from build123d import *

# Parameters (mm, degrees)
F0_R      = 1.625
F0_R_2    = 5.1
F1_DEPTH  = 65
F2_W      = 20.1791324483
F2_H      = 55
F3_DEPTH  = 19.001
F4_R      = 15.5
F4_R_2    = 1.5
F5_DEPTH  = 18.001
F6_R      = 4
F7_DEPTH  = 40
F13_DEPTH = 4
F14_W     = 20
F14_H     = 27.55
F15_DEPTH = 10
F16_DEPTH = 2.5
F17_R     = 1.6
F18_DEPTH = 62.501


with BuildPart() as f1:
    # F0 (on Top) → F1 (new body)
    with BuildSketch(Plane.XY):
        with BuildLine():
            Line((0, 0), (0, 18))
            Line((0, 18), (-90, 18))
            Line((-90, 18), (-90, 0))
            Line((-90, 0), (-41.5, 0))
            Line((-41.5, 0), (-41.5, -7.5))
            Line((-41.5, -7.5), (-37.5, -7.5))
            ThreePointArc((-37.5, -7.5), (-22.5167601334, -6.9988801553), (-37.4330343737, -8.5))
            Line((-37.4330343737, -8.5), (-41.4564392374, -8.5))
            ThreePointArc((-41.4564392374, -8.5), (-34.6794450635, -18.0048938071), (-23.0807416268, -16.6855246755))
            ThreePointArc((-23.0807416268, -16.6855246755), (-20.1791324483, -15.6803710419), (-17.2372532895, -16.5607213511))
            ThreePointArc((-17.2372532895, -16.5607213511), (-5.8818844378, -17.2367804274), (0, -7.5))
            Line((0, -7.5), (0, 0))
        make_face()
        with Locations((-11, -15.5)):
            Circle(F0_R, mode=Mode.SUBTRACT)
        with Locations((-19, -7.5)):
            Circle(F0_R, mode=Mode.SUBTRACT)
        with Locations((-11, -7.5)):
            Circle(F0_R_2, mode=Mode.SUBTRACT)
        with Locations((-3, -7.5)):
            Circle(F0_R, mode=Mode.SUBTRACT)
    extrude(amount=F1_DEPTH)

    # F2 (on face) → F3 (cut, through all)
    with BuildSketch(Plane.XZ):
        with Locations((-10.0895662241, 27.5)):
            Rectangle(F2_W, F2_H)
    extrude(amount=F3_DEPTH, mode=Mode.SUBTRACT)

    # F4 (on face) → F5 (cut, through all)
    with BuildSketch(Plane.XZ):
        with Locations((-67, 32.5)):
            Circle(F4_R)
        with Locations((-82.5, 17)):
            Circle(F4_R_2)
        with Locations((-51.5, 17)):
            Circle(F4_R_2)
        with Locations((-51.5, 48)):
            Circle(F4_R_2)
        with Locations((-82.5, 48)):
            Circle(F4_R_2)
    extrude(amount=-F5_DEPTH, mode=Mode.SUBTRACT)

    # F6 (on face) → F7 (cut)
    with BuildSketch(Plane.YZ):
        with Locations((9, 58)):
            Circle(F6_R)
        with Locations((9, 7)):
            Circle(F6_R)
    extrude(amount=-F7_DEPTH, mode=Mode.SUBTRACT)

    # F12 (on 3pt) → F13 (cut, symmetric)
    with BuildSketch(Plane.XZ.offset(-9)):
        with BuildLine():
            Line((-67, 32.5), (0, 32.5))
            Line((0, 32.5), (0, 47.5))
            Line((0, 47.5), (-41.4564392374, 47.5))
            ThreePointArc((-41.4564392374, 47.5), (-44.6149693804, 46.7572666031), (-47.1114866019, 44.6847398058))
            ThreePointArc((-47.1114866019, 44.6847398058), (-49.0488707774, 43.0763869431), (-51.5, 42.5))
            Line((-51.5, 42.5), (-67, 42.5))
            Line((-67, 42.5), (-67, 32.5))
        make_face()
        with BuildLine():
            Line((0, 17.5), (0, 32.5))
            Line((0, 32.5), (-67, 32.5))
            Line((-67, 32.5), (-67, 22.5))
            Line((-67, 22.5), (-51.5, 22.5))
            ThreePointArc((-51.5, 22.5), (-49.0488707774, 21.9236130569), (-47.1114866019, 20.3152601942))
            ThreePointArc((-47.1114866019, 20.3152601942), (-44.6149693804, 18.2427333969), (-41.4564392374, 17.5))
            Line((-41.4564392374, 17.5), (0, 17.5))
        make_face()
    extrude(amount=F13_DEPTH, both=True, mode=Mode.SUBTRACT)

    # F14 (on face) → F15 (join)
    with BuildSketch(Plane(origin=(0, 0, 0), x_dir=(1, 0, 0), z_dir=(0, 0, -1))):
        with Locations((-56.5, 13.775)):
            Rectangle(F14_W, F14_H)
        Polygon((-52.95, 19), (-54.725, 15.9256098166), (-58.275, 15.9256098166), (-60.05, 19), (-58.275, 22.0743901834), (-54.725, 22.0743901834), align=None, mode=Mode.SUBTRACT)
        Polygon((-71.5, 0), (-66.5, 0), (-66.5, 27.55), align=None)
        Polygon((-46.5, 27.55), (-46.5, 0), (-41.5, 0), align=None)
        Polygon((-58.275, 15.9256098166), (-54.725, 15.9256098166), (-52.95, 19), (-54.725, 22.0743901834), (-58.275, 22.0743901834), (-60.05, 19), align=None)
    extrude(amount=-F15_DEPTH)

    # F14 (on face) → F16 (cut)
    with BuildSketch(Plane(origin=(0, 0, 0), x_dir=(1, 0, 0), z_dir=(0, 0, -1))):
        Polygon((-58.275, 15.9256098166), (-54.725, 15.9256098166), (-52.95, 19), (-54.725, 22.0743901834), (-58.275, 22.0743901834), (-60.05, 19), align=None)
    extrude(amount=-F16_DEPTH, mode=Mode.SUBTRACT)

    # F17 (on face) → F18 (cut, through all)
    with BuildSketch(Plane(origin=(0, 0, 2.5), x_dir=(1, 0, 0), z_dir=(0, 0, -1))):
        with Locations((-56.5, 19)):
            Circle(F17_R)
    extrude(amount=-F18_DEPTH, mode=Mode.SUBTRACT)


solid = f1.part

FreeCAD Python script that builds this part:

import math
import FreeCAD as App
import Part
import Sketcher

V = App.Vector
Q = App.Units.Quantity

doc = App.newDocument("Part")
body = doc.addObject("PartDesign::Body", "Body")

# Sketch on XY plane
sketch1 = doc.addObject("Sketcher::SketchObject", "Sketch")
body.addObject(sketch1)
sketch1.AttachmentSupport = (doc.XY_Plane, [""])
sketch1.MapMode = "FlatFace"
sketch1.addGeometry([
    Part.LineSegment(V(0, 18, 0), V(-90, 18, 0)),  # 0
    Part.LineSegment(V(-90, 18, 0), V(-90, 0, 0)),  # 1
    Part.LineSegment(V(-90, 0, 0), V(-41.5, 0, 0)),  # 2
    Part.LineSegment(V(-41.5, 0, 0), V(-41.5, -7.5, 0)),  # 3
    Part.LineSegment(V(-41.5, -7.5, 0), V(-37.5, -7.5, 0)),  # 4
    Part.ArcOfCircle(Part.Circle(V(-30, -7.5, 0), V(0, 0, 1), 7.5), math.radians(-172), math.radians(180)),  # 5
    Part.LineSegment(V(-37.4, -8.5, 0), V(-41.5, -8.5, 0)),  # 6
    Part.ArcOfCircle(Part.Circle(V(-30, -7.5, 0), V(0, 0, 1), 11.5), math.radians(-175), math.radians(-53)),  # 7
    Part.ArcOfCircle(Part.Circle(V(-20.1, -20.7, 0), V(0, 0, 1), 5), math.radians(55), math.radians(127)),  # 8
    Part.ArcOfCircle(Part.Circle(V(-11, -7.5, 0), V(0, 0, 1), 11), math.radians(-125), math.radians(0)),  # 9
    Part.LineSegment(V(0, -7.5, 0), V(0, 18, 0)),  # 10
    Part.Circle(V(-11, -15.5, 0), V(0, 0, 1), 1.6),  # 11
    Part.Circle(V(-19, -7.5, 0), V(0, 0, 1), 1.6),  # 12
    Part.Circle(V(-11, -7.5, 0), V(0, 0, 1), 5.1),  # 13
    Part.Circle(V(-3, -7.5, 0), V(0, 0, 1), 1.6),  # 14
], False)
sketch1.addConstraint([
    Sketcher.Constraint("Coincident", 0, 2, 1, 1),
    Sketcher.Constraint("Coincident", 1, 2, 2, 1),
    Sketcher.Constraint("Coincident", 2, 2, 3, 1),
    Sketcher.Constraint("Coincident", 3, 2, 4, 1),
    Sketcher.Constraint("Coincident", 4, 2, 5, 2),
    Sketcher.Constraint("Coincident", 5, 1, 6, 1),
    Sketcher.Constraint("Coincident", 6, 2, 7, 1),
    Sketcher.Constraint("Tangent", 7, 2, 8, 2),
    Sketcher.Constraint("Tangent", 8, 1, 9, 1),
    Sketcher.Constraint("Tangent", 9, 2, 10, 1),
    Sketcher.Constraint("Coincident", 10, 2, 0, 1),
    Sketcher.Constraint("Horizontal", 0),
    Sketcher.Constraint("Vertical", 1),
    Sketcher.Constraint("Horizontal", 2),
    Sketcher.Constraint("Vertical", 3),
    Sketcher.Constraint("Horizontal", 4),
    Sketcher.Constraint("Horizontal", 6),
    Sketcher.Constraint("Vertical", 10),
    Sketcher.Constraint("Coincident", 7, 3, 5, 3),
    Sketcher.Constraint("Coincident", 13, 3, 9, 3),
    Sketcher.Constraint("Equal", 11, 12),
    Sketcher.Constraint("Equal", 12, 14),
    Sketcher.Constraint("PointOnObject", 1, 2, -1),
    Sketcher.Constraint("PointOnObject", 9, 2, -2),
    Sketcher.Constraint("Horizontal", 7, 3, 9, 3),
    Sketcher.Constraint("Horizontal", 9, 3, 12, 3),
    Sketcher.Constraint("Horizontal", 13, 3, 14, 3),
    Sketcher.Constraint("Horizontal", 14, 3, 3, 2),
    Sketcher.Constraint("Vertical", 9, 3, 11, 3),
    Sketcher.Constraint("Radius", 8, 5.0),
    Sketcher.Constraint("Radius", 9, 11.0),
    Sketcher.Constraint("Diameter", 13, 10.2),
    Sketcher.Constraint("Radius", 5, 7.5),
    Sketcher.Constraint("Radius", 7, 11.5),
    Sketcher.Constraint("Diameter", 11, 3.25),
    Sketcher.Constraint("DistanceX", 0, 2, 0, 1, 90.0),
    Sketcher.Constraint("DistanceX", 4, 1, 4, 2, 4.0),
    Sketcher.Constraint("DistanceY", 1, 2, 1, 1, 18.0),
    Sketcher.Constraint("DistanceX", 2, 1, 2, 2, 48.5),
    Sketcher.Constraint("DistanceY", 3, 2, 3, 1, 7.5),
    Sketcher.Constraint("DistanceX", 12, 3, -1, 1, 19.0),
    Sketcher.Constraint("DistanceX", 14, 3, -1, 1, 3.0),
    Sketcher.Constraint("DistanceY", 11, 3, 9, 3, 8.0),
    Sketcher.Constraint("DistanceY", 5, 1, 4, 2, 1.0),
])
pad1 = doc.addObject("PartDesign::Pad", "Pad")
body.addObject(pad1)
pad1.Profile = sketch1
pad1.Length = 65

# Sketch on XZ plane
sketch2 = doc.addObject("Sketcher::SketchObject", "Sketch001")
body.addObject(sketch2)
sketch2.AttachmentSupport = (doc.XZ_Plane, [""])
sketch2.MapMode = "FlatFace"
sketch2.addGeometry([
    Part.LineSegment(V(-20, 55, 0), V(-20, 0, 0)),
    Part.LineSegment(V(-20, 0, 0), V(0, 0, 0)),
    Part.LineSegment(V(0, 0, 0), V(0, 55, 0)),
    Part.LineSegment(V(0, 55, 0), V(-20, 55, 0)),
], False)
sketch2.addConstraint([
    Sketcher.Constraint("Coincident", 0, 2, 1, 1),
    Sketcher.Constraint("Coincident", 1, 2, 2, 1),
    Sketcher.Constraint("Coincident", 2, 2, 3, 1),
    Sketcher.Constraint("Coincident", 3, 2, 0, 1),
    Sketcher.Constraint("Vertical", 0),
    Sketcher.Constraint("Horizontal", 1),
    Sketcher.Constraint("Vertical", 2),
    Sketcher.Constraint("Horizontal", 3),
    Sketcher.Constraint("Coincident", 1, 2, -1, 1),
    Sketcher.Constraint("DistanceY", 0, 2, 0, 1, 55.0),
    Sketcher.Constraint("DistanceX", 1, 1, 1, 2, 20.179132),
])
pocket1 = doc.addObject("PartDesign::Pocket", "Pocket")
body.addObject(pocket1)
pocket1.Profile = sketch2
pocket1.Type = "ThroughAll"
pocket1.Reversed = True

# Sketch on XZ plane
sketch3 = doc.addObject("Sketcher::SketchObject", "Sketch002")
body.addObject(sketch3)
sketch3.AttachmentSupport = (doc.XZ_Plane, [""])
sketch3.MapMode = "FlatFace"
sketch3.addGeometry([
    Part.Circle(V(-67, 32.5, 0), V(0, 0, 1), 15.5),  # 0
    Part.Circle(V(-82.5, 17, 0), V(0, 0, 1), 1.5),  # 1
    Part.Circle(V(-51.5, 17, 0), V(0, 0, 1), 1.5),  # 2
    Part.Circle(V(-51.5, 48, 0), V(0, 0, 1), 1.5),  # 3
    Part.Circle(V(-82.5, 48, 0), V(0, 0, 1), 1.5),  # 4
], False)
sketch3.addConstraint([
    Sketcher.Constraint("Equal", 1, 2),
    Sketcher.Constraint("Equal", 2, 3),
    Sketcher.Constraint("Equal", 3, 4),
    Sketcher.Constraint("Horizontal", 1, 3, 2, 3),
    Sketcher.Constraint("Horizontal", 3, 3, 4, 3),
    Sketcher.Constraint("Vertical", 2, 3, 3, 3),
    Sketcher.Constraint("Vertical", 1, 3, 4, 3),
    Sketcher.Constraint("Diameter", 0, 31.0),
    Sketcher.Constraint("Diameter", 1, 3.0),
    Sketcher.Constraint("DistanceX", 0, 3, -1, 1, 67.0),
    Sketcher.Constraint("DistanceY", -1, 1, 1, 3, 17.0),
    Sketcher.Constraint("DistanceY", -1, 1, 3, 3, 48.0),
    Sketcher.Constraint("DistanceX", 1, 3, 2, 3, 31.0),
    Sketcher.Constraint("DistanceY", -1, 1, 0, 3, 32.5),
    Sketcher.Constraint("DistanceX", 1, 3, -1, 1, 82.5),
])
pocket2 = doc.addObject("PartDesign::Pocket", "Pocket001")
body.addObject(pocket2)
pocket2.Profile = sketch3
pocket2.Type = "ThroughAll"

# Sketch on YZ plane
sketch4 = doc.addObject("Sketcher::SketchObject", "Sketch003")
body.addObject(sketch4)
sketch4.AttachmentSupport = (doc.YZ_Plane, [""])
sketch4.MapMode = "FlatFace"
sketch4.addGeometry([
    Part.Circle(V(9, 58, 0), V(0, 0, 1), 4),
    Part.Circle(V(9, 7, 0), V(0, 0, 1), 4),
], False)
sketch4.addConstraint([
    Sketcher.Constraint("Equal", 0, 1),
    Sketcher.Constraint("Vertical", 0, 3, 1, 3),
    Sketcher.Constraint("Diameter", 0, 8.0),
    Sketcher.Constraint("DistanceX", -1, 1, 0, 3, 9.0),
    Sketcher.Constraint("DistanceY", -1, 1, 0, 3, 58.0),
    Sketcher.Constraint("DistanceY", -1, 1, 1, 3, 7.0),
])
pocket3 = doc.addObject("PartDesign::Pocket", "Pocket002")
body.addObject(pocket3)
pocket3.Profile = sketch4
pocket3.Length = 40

# Sketch on XZ plane
sketch5 = doc.addObject("Sketcher::SketchObject", "Sketch004")
body.addObject(sketch5)
sketch5.AttachmentSupport = (doc.XZ_Plane, [""])
sketch5.MapMode = "FlatFace"
sketch5.AttachmentOffset = App.Placement(V(0, 0, -9), App.Rotation())
sketch5.addGeometry([
    Part.LineSegment(V(0, 47.5, 0), V(-41.5, 47.5, 0)),  # 0
    Part.ArcOfCircle(Part.Circle(V(-41.5, 40.4, 0), V(0, 0, 1), 7.1), math.radians(90), math.radians(143)),  # 1
    Part.ArcOfCircle(Part.Circle(V(-51.5, 48, 0), V(0, 0, 1), 5.5), math.radians(-90), math.radians(-37)),  # 2
    Part.LineSegment(V(-51.5, 42.5, 0), V(-67, 42.5, 0)),  # 3
    Part.LineSegment(V(-67, 42.5, 0), V(-67, 22.5, 0)),  # 4
    Part.LineSegment(V(-67, 22.5, 0), V(-51.5, 22.5, 0)),  # 5
    Part.ArcOfCircle(Part.Circle(V(-51.5, 17, 0), V(0, 0, 1), 5.5), math.radians(37), math.radians(90)),  # 6
    Part.ArcOfCircle(Part.Circle(V(-41.5, 24.6, 0), V(0, 0, 1), 7.1), math.radians(-143), math.radians(-90)),  # 7
    Part.LineSegment(V(-41.5, 17.5, 0), V(0, 17.5, 0)),  # 8
    Part.LineSegment(V(0, 17.5, 0), V(0, 47.5, 0)),  # 9
], False)
sketch5.addConstraint([
    Sketcher.Constraint("Tangent", 0, 2, 1, 1),
    Sketcher.Constraint("Tangent", 1, 2, 2, 2),
    Sketcher.Constraint("Tangent", 2, 1, 3, 1),
    Sketcher.Constraint("Coincident", 3, 2, 4, 1),
    Sketcher.Constraint("Coincident", 4, 2, 5, 1),
    Sketcher.Constraint("Tangent", 5, 2, 6, 2),
    Sketcher.Constraint("Tangent", 6, 1, 7, 1),
    Sketcher.Constraint("Tangent", 7, 2, 8, 1),
    Sketcher.Constraint("Coincident", 8, 2, 9, 1),
    Sketcher.Constraint("Coincident", 9, 2, 0, 1),
    Sketcher.Constraint("Horizontal", 0),
    Sketcher.Constraint("Horizontal", 3),
    Sketcher.Constraint("Vertical", 4),
    Sketcher.Constraint("Horizontal", 5),
    Sketcher.Constraint("Horizontal", 8),
    Sketcher.Constraint("Vertical", 9),
    Sketcher.Constraint("Equal", 2, 6),
    Sketcher.Constraint("Equal", 1, 7),
    Sketcher.Constraint("PointOnObject", 8, 2, -2),
    Sketcher.Constraint("Vertical", 2, 3, 6, 3),
    Sketcher.Constraint("Vertical", 1, 3, 7, 3),
    Sketcher.Constraint("Radius", 2, 5.5),
    Sketcher.Constraint("DistanceY", 4, 2, 4, 1, 20.0),
    Sketcher.Constraint("DistanceY", 9, 1, 9, 2, 30.0),
    Sketcher.Constraint("DistanceX", 3, 2, 3, 1, 15.5),
    Sketcher.Constraint("DistanceY", -1, 1, 2, 3, 48.0),
    Sketcher.Constraint("DistanceX", 3, 2, -1, 1, 67.0),
    Sketcher.Constraint("Radius", 1, 7.087311),
])
pocket4 = doc.addObject("PartDesign::Pocket", "Pocket003")
body.addObject(pocket4)
pocket4.Profile = sketch5
pocket4.Length = 8
pocket4.Midplane = True

# Sketch on XY plane
sketch6 = doc.addObject("Sketcher::SketchObject", "Sketch005")
body.addObject(sketch6)
sketch6.AttachmentSupport = (doc.XY_Plane, [""])
sketch6.MapMode = "FlatFace"
sketch6.addGeometry([
    Part.LineSegment(V(-46, -28, 0), V(-66, -28, 0)),
    Part.LineSegment(V(-66, -28, 0), V(-72, 0, 0)),
    Part.LineSegment(V(-72, 0, 0), V(-42, 0, 0)),
    Part.LineSegment(V(-42, 0, 0), V(-46, -28, 0)),
], False)
sketch6.addConstraint([
    Sketcher.Constraint("Coincident", 0, 2, 1, 1),
    Sketcher.Constraint("Coincident", 1, 2, 2, 1),
    Sketcher.Constraint("Coincident", 2, 2, 3, 1),
    Sketcher.Constraint("Coincident", 3, 2, 0, 1),
    Sketcher.Constraint("Horizontal", 0),
    Sketcher.Constraint("Horizontal", 2),
    Sketcher.Constraint("PointOnObject", 1, 2, -1),
    Sketcher.Constraint("Equal", 1, 3),
    Sketcher.Constraint("DistanceX", 0, 2, 0, 1, 20.0),
    Sketcher.Constraint("DistanceX", 2, 1, 2, 2, 30.0),
    Sketcher.Constraint("DistanceX", 0, 2, -1, 1, 66.5),
    Sketcher.Constraint("DistanceY", 0, 2, -1, 1, 27.55),
])
pad2 = doc.addObject("PartDesign::Pad", "Pad001")
body.addObject(pad2)
pad2.Profile = sketch6
pad2.Length = 10

# Sketch on XY plane
sketch7 = doc.addObject("Sketcher::SketchObject", "Sketch006")
body.addObject(sketch7)
sketch7.AttachmentSupport = (doc.XY_Plane, [""])
sketch7.MapMode = "FlatFace"
sketch7.addGeometry([
    Part.LineSegment(V(-58.3, -15.9, 0), V(-54.7, -15.9, 0)),  # 0
    Part.LineSegment(V(-54.7, -15.9, 0), V(-53, -19, 0)),  # 1
    Part.LineSegment(V(-53, -19, 0), V(-54.7, -22.1, 0)),  # 2
    Part.LineSegment(V(-54.7, -22.1, 0), V(-58.3, -22.1, 0)),  # 3
    Part.LineSegment(V(-58.3, -22.1, 0), V(-60, -19, 0)),  # 4
    Part.LineSegment(V(-60, -19, 0), V(-58.3, -15.9, 0)),  # 5
], False)
sketch7.addConstraint([
    Sketcher.Constraint("Coincident", 0, 2, 1, 1),
    Sketcher.Constraint("Coincident", 1, 2, 2, 1),
    Sketcher.Constraint("Coincident", 2, 2, 3, 1),
    Sketcher.Constraint("Coincident", 3, 2, 4, 1),
    Sketcher.Constraint("Coincident", 4, 2, 5, 1),
    Sketcher.Constraint("Coincident", 5, 2, 0, 1),
    Sketcher.Constraint("Horizontal", 0),
    Sketcher.Constraint("Horizontal", 3),
    Sketcher.Constraint("Parallel", 1, 4),
    Sketcher.Constraint("Parallel", 2, 5),
    Sketcher.Constraint("Horizontal", 1, 2, 4, 2),
    Sketcher.Constraint("Vertical", 0, 2, 2, 2),
    Sketcher.Constraint("Vertical", 3, 2, 5, 2),
    Sketcher.Constraint("Angle", 1, Q("-60 deg")),
    Sketcher.Constraint("DistanceY", 1, 2, -1, 1, 19.0),
    Sketcher.Constraint("DistanceX", 0, 1, 0, 2, 3.55),
    Sketcher.Constraint("DistanceX", 4, 2, 1, 2, 7.1),
    Sketcher.Constraint("DistanceX", 1, 2, -1, 1, 52.95),
])
pocket5 = doc.addObject("PartDesign::Pocket", "Pocket004")
body.addObject(pocket5)
pocket5.Profile = sketch7
pocket5.Length = 2.5
pocket5.Reversed = True

# Sketch on XY plane
sketch8 = doc.addObject("Sketcher::SketchObject", "Sketch007")
body.addObject(sketch8)
sketch8.AttachmentSupport = (doc.XY_Plane, [""])
sketch8.MapMode = "FlatFace"
sketch8.AttachmentOffset = App.Placement(V(0, 0, 2.5), App.Rotation())
sketch8.addGeometry(Part.Circle(V(-56.5, -19, 0), V(0, 0, 1), 1.6), False)
sketch8.addConstraint([
    Sketcher.Constraint("Diameter", 0, 3.2),
    Sketcher.Constraint("DistanceY", 0, 3, -1, 1, 19.0),
    Sketcher.Constraint("DistanceX", 0, 3, -1, 1, 56.5),
])
pocket6 = doc.addObject("PartDesign::Pocket", "Pocket005")
body.addObject(pocket6)
pocket6.Profile = sketch8
pocket6.Type = "ThroughAll"
pocket6.Reversed = True

doc.recompute()
